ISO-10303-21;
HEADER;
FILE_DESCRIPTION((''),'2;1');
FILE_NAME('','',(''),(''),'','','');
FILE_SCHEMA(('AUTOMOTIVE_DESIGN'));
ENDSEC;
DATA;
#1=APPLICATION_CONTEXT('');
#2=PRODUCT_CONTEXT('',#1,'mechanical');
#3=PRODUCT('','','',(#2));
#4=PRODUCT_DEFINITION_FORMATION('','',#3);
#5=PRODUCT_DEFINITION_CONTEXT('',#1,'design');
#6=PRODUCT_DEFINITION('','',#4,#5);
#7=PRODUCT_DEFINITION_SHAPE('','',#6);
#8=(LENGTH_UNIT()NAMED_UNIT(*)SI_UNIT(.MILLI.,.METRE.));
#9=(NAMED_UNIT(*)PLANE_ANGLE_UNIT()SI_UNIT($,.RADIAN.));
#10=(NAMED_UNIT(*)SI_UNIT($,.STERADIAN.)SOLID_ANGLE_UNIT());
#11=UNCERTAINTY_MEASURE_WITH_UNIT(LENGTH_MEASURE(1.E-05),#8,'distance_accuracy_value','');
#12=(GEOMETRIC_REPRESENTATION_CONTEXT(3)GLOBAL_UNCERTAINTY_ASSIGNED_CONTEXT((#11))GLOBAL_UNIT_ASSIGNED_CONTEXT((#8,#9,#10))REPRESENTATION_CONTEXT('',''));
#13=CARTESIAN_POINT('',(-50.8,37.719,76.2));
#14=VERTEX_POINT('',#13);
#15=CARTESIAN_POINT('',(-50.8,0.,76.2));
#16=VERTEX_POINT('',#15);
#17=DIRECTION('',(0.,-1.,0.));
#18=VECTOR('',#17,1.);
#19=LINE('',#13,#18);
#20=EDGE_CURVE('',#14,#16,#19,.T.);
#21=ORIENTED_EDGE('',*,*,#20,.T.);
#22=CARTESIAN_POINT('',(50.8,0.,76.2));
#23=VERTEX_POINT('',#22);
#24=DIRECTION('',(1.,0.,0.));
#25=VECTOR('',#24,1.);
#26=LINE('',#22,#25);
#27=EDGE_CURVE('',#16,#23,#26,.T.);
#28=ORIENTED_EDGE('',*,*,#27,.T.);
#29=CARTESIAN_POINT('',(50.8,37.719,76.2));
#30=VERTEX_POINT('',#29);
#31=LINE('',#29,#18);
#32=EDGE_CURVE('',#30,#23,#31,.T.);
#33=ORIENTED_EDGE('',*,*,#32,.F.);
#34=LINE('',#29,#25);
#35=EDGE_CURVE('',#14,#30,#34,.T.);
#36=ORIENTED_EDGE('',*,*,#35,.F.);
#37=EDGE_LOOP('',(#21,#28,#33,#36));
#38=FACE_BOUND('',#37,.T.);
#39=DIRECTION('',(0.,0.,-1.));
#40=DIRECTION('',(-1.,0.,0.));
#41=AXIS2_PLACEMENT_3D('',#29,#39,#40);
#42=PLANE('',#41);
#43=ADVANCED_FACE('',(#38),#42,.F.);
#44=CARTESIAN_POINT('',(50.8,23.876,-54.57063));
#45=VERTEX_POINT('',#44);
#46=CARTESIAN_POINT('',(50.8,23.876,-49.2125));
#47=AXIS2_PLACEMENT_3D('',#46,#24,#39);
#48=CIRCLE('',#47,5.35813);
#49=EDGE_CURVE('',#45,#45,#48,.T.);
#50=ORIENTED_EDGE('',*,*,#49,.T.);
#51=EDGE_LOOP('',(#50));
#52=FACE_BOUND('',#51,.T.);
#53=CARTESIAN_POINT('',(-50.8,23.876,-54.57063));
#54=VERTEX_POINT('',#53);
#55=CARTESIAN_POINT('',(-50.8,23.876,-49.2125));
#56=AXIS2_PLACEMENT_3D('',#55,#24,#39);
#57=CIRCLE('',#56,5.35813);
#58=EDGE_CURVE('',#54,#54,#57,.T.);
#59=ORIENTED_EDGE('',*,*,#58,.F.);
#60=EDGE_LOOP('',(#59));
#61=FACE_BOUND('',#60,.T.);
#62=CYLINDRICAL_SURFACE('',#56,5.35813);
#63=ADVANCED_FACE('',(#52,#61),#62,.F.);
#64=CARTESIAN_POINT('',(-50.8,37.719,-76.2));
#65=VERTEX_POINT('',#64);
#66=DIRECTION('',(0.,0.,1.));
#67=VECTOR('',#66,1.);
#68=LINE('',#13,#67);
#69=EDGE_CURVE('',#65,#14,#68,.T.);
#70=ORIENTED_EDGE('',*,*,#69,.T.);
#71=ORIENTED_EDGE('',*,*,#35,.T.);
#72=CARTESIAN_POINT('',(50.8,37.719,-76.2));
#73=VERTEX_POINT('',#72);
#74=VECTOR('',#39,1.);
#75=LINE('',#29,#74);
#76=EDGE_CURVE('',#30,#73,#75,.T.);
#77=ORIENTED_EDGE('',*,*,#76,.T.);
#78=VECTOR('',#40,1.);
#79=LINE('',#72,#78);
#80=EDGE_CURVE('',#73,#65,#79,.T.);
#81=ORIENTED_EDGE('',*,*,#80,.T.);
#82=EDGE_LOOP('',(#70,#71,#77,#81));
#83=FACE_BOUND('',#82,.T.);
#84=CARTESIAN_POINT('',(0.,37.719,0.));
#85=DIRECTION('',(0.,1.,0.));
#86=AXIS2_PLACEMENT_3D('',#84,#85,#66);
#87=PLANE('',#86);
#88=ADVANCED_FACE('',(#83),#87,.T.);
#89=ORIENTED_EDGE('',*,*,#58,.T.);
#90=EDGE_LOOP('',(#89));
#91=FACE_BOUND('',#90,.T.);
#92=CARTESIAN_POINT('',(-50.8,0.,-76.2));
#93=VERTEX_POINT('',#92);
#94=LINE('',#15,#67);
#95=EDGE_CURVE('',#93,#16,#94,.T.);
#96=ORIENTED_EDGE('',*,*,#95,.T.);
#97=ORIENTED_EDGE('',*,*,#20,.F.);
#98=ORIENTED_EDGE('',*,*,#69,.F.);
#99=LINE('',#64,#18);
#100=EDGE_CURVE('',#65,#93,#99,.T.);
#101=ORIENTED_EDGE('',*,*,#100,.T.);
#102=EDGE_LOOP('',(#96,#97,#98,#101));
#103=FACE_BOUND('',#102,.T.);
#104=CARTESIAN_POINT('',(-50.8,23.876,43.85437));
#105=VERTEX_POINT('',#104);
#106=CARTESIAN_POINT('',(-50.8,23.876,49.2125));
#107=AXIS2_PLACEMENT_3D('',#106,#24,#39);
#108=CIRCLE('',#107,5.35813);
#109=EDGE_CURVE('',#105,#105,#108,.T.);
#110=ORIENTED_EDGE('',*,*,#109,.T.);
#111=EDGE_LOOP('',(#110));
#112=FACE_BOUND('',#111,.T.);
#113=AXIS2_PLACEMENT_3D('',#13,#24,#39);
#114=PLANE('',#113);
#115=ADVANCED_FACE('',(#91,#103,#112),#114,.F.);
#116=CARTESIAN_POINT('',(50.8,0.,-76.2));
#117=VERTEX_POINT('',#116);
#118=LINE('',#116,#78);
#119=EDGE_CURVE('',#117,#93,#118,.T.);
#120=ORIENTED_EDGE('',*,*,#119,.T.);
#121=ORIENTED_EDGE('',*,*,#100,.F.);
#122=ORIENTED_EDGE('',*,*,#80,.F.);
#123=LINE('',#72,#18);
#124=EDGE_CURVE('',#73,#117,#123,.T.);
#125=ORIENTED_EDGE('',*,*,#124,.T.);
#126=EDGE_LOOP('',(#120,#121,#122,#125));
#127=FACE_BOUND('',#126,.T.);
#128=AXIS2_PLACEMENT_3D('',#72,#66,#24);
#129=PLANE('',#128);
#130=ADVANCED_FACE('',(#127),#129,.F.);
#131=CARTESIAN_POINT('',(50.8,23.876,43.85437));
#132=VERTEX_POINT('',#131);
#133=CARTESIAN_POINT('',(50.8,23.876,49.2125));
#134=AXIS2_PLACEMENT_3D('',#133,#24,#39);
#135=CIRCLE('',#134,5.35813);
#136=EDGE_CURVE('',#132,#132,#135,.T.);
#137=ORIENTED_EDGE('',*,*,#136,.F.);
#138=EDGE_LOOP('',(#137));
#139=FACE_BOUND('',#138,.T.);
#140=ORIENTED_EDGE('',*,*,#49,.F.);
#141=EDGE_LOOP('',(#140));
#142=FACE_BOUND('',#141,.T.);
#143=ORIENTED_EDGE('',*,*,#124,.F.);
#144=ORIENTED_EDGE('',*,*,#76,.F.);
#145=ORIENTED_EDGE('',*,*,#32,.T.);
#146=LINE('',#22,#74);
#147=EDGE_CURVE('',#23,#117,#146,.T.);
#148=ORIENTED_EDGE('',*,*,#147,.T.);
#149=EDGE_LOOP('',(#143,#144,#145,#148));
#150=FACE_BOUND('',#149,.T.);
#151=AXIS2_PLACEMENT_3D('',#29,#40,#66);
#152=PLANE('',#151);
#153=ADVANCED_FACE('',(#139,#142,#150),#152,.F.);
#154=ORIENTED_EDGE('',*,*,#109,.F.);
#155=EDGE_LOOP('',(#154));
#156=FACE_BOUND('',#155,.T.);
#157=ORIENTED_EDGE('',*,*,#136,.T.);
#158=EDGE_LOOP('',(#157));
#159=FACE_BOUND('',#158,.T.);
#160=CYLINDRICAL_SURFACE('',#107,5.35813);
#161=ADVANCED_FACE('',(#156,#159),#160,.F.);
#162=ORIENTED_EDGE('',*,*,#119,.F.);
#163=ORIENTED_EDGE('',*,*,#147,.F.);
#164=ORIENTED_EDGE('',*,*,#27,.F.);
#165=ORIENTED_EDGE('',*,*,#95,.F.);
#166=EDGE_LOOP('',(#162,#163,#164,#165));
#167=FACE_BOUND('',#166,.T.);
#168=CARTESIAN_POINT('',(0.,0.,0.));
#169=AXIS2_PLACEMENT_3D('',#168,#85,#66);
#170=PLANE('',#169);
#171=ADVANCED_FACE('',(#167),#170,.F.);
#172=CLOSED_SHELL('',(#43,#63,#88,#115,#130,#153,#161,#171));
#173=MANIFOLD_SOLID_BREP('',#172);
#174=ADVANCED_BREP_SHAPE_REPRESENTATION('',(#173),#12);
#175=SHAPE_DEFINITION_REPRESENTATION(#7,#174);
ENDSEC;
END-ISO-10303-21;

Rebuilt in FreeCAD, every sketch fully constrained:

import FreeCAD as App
import Part
import Sketcher
Q = App.Units.Quantity


def add_polygon(sketch, points):
    """Adds a closed chain of lines whose ends are joined by coincident constraints."""
    first, n = sketch.GeometryCount, len(points)
    for a, b in zip(points, points[1:] + points[:1]):
        sketch.addGeometry(Part.LineSegment(App.Vector(*a, 0), App.Vector(*b, 0)), False)
    for i in range(n):
        sketch.addConstraint(Sketcher.Constraint("Coincident", first + i, 2, first + (i + 1) % n, 1))

doc = App.newDocument("Part")
body = doc.addObject("PartDesign::Body", "Body")

# Sketch on XZ plane
sketch1 = doc.addObject("Sketcher::SketchObject", "Sketch")
body.addObject(sketch1)
sketch1.AttachmentSupport = (doc.XZ_Plane, [""])
sketch1.MapMode = "FlatFace"
add_polygon(sketch1, [(-50.8, -76.2), (-50.8, 76.2), (50.8, 76.2), (50.8, -76.2)])  # lines 0-3
sketch1.addConstraint([
    Sketcher.Constraint("Vertical", 0),
    Sketcher.Constraint("Horizontal", 1),
    Sketcher.Constraint("Vertical", 2),
    Sketcher.Constraint("Horizontal", 3),
    Sketcher.Constraint("Symmetric", 0, 2, 2, 2, -1, 1),
    Sketcher.Constraint("DistanceX", 1, 1, 1, 2, Q("4 in")),
    Sketcher.Constraint("DistanceY", 0, 1, 0, 2, Q("6 in")),
])
pad1 = doc.addObject("PartDesign::Pad", "Pad")
body.addObject(pad1)
pad1.Profile = sketch1
pad1.Length = Q("1.485 in")
pad1.Reversed = True

# Sketch on YZ plane
sketch2 = doc.addObject("Sketcher::SketchObject", "Sketch001")
body.addObject(sketch2)
sketch2.AttachmentSupport = (doc.YZ_Plane, [""])
sketch2.MapMode = "FlatFace"
sketch2.AttachmentOffset = App.Placement(App.Vector(0, 0, 2 * 25.4), App.Rotation())
sketch2.addGeometry([
    Part.Circle(App.Vector(23.876, 49.2125, 0), App.Vector(0, 0, 1), 5.35813),
    Part.Circle(App.Vector(23.876, -49.2125, 0), App.Vector(0, 0, 1), 5.35813),
], False)
sketch2.addConstraint([
    Sketcher.Constraint("Equal", 0, 1),
    Sketcher.Constraint("Symmetric", 0, 3, 1, 3, -1),
    Sketcher.Constraint("Diameter", 0, Q("0.4219 in")),
    Sketcher.Constraint("DistanceX", -1, 1, 0, 3, Q("0.94 in")),
    Sketcher.Constraint("DistanceY", -1, 1, 0, 3, Q("1.9375 in")),
])
pocket1 = doc.addObject("PartDesign::Pocket", "Pocket")
body.addObject(pocket1)
pocket1.Profile = sketch2
pocket1.Type = "ThroughAll"

doc.recompute()
